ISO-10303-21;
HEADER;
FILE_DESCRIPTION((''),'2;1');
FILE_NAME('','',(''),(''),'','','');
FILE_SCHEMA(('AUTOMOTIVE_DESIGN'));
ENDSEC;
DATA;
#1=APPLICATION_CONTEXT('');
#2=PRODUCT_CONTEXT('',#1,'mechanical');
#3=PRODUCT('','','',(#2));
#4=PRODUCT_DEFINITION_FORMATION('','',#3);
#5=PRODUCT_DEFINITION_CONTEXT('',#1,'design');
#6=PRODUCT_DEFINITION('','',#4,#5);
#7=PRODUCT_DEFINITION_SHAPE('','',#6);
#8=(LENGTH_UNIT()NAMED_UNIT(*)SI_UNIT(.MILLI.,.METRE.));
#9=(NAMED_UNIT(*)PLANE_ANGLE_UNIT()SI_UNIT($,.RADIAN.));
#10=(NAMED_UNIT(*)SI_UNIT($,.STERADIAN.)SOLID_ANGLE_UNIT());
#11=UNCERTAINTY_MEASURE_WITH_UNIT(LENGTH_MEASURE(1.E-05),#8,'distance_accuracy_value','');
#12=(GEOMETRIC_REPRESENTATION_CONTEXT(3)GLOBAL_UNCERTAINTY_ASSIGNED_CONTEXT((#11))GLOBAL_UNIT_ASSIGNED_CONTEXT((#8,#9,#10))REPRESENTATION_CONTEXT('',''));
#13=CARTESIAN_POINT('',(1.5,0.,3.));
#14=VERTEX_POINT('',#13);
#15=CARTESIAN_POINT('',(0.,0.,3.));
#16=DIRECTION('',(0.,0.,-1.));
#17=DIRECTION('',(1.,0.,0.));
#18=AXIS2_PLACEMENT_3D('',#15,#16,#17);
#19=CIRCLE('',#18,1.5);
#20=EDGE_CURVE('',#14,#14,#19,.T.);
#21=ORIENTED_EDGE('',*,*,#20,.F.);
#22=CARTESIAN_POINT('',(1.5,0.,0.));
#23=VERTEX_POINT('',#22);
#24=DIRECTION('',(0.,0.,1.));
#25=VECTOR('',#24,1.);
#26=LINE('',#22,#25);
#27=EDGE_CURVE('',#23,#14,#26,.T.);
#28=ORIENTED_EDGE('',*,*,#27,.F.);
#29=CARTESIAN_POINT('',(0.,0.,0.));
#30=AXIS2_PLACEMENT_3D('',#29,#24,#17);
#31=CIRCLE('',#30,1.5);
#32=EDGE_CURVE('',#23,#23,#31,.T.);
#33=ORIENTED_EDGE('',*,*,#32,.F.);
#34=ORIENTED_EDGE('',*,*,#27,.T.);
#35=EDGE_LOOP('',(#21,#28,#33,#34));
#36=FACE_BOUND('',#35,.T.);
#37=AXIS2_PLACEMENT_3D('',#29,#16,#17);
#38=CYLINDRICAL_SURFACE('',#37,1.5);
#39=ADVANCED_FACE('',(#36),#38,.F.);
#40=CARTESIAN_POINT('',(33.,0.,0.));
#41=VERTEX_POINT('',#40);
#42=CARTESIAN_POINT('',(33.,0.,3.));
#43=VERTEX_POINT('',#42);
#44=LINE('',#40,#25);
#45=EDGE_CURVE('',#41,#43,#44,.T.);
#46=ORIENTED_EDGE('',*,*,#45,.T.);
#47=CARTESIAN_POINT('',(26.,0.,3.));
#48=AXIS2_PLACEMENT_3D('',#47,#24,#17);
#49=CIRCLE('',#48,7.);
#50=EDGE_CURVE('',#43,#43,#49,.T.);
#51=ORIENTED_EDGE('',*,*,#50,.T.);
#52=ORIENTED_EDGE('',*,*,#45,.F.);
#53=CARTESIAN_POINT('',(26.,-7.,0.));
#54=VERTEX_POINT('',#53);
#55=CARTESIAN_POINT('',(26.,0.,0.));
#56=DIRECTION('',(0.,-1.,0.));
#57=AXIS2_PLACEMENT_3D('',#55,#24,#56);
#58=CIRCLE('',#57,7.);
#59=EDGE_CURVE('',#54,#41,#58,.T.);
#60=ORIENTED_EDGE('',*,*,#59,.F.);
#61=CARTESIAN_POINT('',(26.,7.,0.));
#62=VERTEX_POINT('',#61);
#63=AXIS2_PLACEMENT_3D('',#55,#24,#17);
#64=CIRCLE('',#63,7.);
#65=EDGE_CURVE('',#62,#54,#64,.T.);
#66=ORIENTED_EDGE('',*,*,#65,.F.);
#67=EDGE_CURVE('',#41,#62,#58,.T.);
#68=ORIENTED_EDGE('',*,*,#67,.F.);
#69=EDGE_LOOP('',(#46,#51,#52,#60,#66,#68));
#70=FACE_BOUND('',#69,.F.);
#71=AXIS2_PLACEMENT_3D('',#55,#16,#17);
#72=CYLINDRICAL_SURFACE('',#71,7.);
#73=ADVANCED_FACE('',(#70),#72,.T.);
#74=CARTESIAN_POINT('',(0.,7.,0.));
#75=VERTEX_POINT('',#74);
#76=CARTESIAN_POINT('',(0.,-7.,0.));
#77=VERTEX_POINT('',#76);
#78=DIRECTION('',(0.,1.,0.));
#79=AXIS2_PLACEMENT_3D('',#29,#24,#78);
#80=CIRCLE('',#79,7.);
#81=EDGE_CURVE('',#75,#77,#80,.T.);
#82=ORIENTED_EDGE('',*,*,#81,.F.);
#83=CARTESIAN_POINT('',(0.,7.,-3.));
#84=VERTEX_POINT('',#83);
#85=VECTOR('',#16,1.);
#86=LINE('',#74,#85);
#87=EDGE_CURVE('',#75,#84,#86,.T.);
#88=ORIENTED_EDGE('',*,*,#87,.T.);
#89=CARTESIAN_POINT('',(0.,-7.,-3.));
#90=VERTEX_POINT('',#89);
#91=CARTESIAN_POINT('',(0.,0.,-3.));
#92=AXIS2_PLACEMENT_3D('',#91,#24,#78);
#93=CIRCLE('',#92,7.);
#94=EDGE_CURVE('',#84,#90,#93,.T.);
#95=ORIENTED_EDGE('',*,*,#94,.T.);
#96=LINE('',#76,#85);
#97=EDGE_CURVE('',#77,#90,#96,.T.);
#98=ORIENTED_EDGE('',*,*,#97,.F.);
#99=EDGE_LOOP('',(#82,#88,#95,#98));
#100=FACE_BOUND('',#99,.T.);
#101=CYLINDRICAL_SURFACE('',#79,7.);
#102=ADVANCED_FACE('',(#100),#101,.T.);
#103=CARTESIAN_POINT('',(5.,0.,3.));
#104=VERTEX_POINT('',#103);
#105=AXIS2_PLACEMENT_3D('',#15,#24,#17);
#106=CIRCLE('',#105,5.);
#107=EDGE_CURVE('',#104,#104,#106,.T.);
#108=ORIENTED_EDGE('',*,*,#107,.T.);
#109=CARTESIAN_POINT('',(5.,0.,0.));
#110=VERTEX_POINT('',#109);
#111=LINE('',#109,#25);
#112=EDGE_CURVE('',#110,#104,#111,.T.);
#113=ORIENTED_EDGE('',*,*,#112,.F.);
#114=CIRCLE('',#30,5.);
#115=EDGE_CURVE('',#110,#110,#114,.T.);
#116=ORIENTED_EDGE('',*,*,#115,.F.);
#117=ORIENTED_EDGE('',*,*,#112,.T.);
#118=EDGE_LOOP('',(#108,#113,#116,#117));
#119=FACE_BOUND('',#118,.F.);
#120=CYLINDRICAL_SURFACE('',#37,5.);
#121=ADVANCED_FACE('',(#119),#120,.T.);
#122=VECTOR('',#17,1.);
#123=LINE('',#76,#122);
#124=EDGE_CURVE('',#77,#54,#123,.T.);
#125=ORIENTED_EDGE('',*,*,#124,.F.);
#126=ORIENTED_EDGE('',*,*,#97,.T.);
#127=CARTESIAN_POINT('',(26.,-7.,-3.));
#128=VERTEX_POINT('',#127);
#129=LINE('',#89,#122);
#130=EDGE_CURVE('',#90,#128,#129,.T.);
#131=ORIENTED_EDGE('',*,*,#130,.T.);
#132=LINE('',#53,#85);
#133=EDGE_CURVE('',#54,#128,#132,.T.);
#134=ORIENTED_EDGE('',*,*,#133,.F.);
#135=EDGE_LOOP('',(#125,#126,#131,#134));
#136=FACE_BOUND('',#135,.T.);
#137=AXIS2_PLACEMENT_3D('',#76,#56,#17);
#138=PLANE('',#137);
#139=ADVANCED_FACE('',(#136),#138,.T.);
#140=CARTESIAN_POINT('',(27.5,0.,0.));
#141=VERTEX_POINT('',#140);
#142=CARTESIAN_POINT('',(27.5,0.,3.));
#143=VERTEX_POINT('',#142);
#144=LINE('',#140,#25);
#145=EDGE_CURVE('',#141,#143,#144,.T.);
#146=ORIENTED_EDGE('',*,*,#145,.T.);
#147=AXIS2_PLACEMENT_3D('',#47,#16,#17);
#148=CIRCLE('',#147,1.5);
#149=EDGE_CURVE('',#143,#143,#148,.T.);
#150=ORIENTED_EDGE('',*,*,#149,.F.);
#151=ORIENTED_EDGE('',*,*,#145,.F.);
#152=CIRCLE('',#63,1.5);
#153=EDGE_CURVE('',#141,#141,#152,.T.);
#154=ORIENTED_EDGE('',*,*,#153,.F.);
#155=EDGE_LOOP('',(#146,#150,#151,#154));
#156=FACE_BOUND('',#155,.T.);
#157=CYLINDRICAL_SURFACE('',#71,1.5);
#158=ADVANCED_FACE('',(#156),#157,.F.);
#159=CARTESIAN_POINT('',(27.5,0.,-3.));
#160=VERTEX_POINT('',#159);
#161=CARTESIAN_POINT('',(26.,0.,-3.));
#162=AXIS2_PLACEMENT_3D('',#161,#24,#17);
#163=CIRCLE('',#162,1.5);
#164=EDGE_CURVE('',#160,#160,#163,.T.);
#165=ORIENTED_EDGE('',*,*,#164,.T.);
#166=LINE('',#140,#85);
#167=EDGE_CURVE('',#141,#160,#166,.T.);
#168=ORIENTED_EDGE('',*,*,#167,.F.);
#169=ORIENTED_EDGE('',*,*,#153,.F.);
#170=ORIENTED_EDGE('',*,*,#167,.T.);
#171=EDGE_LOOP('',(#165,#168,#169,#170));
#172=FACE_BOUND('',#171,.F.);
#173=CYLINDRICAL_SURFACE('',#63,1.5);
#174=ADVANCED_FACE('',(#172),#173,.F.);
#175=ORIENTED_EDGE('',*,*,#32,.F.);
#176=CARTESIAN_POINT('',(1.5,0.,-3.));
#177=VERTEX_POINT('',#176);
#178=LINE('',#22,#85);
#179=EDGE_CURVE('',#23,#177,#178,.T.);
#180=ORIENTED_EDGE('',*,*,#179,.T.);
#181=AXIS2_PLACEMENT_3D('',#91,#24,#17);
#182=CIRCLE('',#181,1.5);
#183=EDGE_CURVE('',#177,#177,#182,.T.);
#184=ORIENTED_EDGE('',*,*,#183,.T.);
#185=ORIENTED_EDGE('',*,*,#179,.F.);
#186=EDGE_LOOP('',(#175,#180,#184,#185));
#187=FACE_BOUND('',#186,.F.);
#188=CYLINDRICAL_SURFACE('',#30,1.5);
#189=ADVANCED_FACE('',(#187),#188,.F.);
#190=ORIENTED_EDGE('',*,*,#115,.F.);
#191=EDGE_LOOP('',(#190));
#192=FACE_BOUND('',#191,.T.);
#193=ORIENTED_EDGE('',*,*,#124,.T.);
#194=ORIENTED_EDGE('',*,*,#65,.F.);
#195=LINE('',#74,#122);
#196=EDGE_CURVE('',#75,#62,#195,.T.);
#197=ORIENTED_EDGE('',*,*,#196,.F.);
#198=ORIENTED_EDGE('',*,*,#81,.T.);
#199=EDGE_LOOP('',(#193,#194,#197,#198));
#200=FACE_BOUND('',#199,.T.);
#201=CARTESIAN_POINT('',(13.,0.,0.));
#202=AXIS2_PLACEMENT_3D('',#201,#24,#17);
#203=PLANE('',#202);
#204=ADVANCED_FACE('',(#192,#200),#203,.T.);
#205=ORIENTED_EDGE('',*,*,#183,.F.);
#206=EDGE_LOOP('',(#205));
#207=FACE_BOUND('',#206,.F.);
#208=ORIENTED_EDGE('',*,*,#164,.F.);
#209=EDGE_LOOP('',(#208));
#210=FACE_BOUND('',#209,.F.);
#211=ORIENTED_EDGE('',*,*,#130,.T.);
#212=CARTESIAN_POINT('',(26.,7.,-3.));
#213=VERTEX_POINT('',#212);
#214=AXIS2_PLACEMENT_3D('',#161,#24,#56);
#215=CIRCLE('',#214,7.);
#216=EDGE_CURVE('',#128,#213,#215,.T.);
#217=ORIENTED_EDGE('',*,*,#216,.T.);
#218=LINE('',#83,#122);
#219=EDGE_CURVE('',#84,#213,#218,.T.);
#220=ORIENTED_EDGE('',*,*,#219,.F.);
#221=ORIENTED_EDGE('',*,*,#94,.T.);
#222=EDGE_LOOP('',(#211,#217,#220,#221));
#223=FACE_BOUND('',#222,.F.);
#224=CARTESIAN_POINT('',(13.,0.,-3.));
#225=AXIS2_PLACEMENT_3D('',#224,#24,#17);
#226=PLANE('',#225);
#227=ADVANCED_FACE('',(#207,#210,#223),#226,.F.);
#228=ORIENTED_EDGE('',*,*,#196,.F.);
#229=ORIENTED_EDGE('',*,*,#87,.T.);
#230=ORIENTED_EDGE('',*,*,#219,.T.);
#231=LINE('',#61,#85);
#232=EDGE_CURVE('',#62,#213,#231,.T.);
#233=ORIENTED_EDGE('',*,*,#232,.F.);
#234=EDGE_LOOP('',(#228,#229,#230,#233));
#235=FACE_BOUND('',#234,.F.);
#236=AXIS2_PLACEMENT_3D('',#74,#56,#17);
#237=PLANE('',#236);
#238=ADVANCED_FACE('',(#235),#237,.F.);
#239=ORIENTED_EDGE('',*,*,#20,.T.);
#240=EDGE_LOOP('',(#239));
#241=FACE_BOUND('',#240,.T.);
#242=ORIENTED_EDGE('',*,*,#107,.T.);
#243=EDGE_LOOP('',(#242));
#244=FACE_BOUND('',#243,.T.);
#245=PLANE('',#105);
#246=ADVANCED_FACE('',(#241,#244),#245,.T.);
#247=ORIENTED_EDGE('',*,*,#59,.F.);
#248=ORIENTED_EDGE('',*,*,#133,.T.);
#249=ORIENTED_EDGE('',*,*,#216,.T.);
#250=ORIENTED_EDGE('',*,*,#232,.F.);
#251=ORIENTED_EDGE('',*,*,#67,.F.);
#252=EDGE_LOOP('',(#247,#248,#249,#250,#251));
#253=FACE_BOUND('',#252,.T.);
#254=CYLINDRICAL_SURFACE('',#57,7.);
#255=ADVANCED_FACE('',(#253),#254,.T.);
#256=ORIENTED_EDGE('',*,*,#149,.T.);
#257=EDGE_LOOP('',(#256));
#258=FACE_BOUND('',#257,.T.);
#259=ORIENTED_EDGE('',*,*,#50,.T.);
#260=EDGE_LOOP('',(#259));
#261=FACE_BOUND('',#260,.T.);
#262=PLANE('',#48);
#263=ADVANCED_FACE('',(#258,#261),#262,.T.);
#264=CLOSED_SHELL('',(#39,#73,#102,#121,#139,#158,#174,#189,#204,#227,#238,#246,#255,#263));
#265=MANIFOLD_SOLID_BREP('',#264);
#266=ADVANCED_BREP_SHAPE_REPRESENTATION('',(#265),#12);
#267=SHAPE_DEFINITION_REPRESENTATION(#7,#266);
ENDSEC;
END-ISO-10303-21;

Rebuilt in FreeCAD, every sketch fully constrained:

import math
import FreeCAD as App
import Part
import Sketcher

V = App.Vector

doc = App.newDocument("Part")
body = doc.addObject("PartDesign::Body", "Body")

# Sketch on XY plane
sketch1 = body.newObject("Sketcher::SketchObject", "Sketch")
sketch1.AttachmentSupport = (doc.getObject("XY_Plane"), [""])
sketch1.MapMode = "FlatFace"
sketch1.addGeometry(Part.ArcOfCircle(Part.Circle(V(0, 0, 0), V(0, 0, 1), 7), math.radians(90), math.radians(270)), False)
sketch1.addGeometry(Part.LineSegment(V(0, -7, 0), V(26, -7, 0)), False)
sketch1.addGeometry(Part.ArcOfCircle(Part.Circle(V(26, 0, 0), V(0, 0, 1), 7), math.radians(-90), math.radians(90)), False)
sketch1.addGeometry(Part.LineSegment(V(26, 7, 0), V(0, 7, 0)), False)
sketch1.addConstraint(Sketcher.Constraint("Tangent", 0, 2, 1, 1))
sketch1.addConstraint(Sketcher.Constraint("Tangent", 1, 2, 2, 1))
sketch1.addConstraint(Sketcher.Constraint("Tangent", 2, 2, 3, 1))
sketch1.addConstraint(Sketcher.Constraint("Tangent", 3, 2, 0, 1))
sketch1.addConstraint(Sketcher.Constraint("Horizontal", 1))
sketch1.addConstraint(Sketcher.Constraint("Horizontal", 3))
sketch1.addConstraint(Sketcher.Constraint("Coincident", 0, 3, -1, 1))
sketch1.addConstraint(Sketcher.Constraint("Radius", 0, 7.0))
sketch1.addConstraint(Sketcher.Constraint("DistanceX", 1, 1, 1, 2, 26.0))
pad1 = body.newObject("PartDesign::Pad", "Pad")
pad1.Profile = sketch1
pad1.Length = 3
pad1.Reversed = True

# Sketch on XY plane
sketch2 = body.newObject("Sketcher::SketchObject", "Sketch001")
sketch2.AttachmentSupport = (doc.getObject("XY_Plane"), [""])
sketch2.MapMode = "FlatFace"
sketch2.addGeometry(Part.Circle(V(26, 0, 0), V(0, 0, 1), 7), False)
sketch2.addGeometry(Part.Circle(V(0, 0, 0), V(0, 0, 1), 5), False)
sketch2.addConstraint(Sketcher.Constraint("Coincident", 1, 3, -1, 1))
sketch2.addConstraint(Sketcher.Constraint("PointOnObject", 0, 3, -1))
sketch2.addConstraint(Sketcher.Constraint("Diameter", 0, 14.0))
sketch2.addConstraint(Sketcher.Constraint("Diameter", 1, 10.0))
sketch2.addConstraint(Sketcher.Constraint("DistanceX", -1, 1, 0, 3, 26.0))
pad2 = body.newObject("PartDesign::Pad", "Pad001")
pad2.Profile = sketch2
pad2.Length = 3

# Sketch on XY plane
sketch3 = body.newObject("Sketcher::SketchObject", "Sketch002")
sketch3.AttachmentSupport = (doc.getObject("XY_Plane"), [""])
sketch3.MapMode = "FlatFace"
sketch3.addGeometry(Part.Circle(V(0, 0, 0), V(0, 0, 1), 1.5), False)
sketch3.addGeometry(Part.Circle(V(26, 0, 0), V(0, 0, 1), 1.5), False)
sketch3.addConstraint(Sketcher.Constraint("Coincident", 0, 3, -1, 1))
sketch3.addConstraint(Sketcher.Constraint("Equal", 0, 1))
sketch3.addConstraint(Sketcher.Constraint("PointOnObject", 1, 3, -1))
sketch3.addConstraint(Sketcher.Constraint("Diameter", 0, 3.0))
sketch3.addConstraint(Sketcher.Constraint("DistanceX", -1, 1, 1, 3, 26.0))
pocket1 = body.newObject("PartDesign::Pocket", "Pocket")
pocket1.Profile = sketch3
pocket1.Type = "ThroughAll"
pocket1.Midplane = True

doc.recompute()
